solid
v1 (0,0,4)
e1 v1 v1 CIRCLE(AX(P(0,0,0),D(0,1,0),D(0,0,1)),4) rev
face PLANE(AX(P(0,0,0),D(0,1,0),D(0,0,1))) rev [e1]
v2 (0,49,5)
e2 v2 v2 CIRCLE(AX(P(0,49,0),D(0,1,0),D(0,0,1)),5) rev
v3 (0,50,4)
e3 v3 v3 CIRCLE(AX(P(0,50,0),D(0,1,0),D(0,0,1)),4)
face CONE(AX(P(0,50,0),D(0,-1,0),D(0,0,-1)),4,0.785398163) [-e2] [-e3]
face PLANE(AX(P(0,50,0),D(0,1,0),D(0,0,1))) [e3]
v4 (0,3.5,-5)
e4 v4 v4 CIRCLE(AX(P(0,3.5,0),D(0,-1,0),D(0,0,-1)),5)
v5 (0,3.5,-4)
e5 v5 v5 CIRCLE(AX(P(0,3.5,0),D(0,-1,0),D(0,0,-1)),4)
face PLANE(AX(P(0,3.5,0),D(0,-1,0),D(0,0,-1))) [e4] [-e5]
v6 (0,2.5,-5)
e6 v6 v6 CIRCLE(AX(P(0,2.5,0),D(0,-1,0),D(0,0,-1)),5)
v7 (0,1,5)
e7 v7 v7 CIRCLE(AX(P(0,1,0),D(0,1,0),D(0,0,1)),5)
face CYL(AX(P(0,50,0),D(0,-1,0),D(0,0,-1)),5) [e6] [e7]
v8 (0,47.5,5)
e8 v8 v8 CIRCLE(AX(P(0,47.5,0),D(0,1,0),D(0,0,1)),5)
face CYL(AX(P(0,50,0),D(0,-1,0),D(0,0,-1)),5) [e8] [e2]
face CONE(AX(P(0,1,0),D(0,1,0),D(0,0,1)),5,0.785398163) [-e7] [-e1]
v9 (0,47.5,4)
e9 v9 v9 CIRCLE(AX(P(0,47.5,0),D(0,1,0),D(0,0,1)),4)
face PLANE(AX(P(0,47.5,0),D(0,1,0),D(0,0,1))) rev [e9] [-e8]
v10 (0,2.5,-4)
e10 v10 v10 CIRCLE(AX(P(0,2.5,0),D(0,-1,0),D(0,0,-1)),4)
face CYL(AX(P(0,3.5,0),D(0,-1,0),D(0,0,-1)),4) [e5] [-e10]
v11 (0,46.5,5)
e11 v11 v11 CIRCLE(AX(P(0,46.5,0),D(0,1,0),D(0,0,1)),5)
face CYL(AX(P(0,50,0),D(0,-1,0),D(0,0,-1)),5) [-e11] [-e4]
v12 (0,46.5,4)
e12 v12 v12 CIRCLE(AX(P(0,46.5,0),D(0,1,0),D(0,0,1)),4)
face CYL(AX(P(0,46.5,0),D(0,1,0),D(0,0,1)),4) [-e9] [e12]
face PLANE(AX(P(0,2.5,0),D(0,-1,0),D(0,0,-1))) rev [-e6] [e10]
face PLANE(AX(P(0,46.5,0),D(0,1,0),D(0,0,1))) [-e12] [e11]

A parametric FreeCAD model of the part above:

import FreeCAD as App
import Part
import Sketcher

V = App.Vector


def edges_at(feature, points):
    """Names of the edges that pass closest to the given points."""
    edges = feature.Shape.Edges
    near = lambda p: min(range(len(edges)), key=lambda i: edges[i].distToShape(Part.Vertex(*p))[0])
    return sorted({f"Edge{near(p) + 1}" for p in points})

doc = App.newDocument("Part")
params = doc.addObject("Spreadsheet::Sheet", "Params")
for row, (alias, value) in enumerate([
    ("sketch1_diameter", "10 mm"),
    ("pad1_length", "50 mm"),
    ("chamfer_size", "1 mm"),
    ("sketch2_diameter", "12 mm"),
    ("sketch2_diameter2", "8 mm"),
    ("pocket1_length", "1 mm"),
    ("sketch3_diameter", "10 mm"),
    ("sketch3_diameter2", "8 mm"),
    ("pocket2_length", "1 mm"),
], start=1):
    params.set(f"A{row}", alias)
    params.set(f"B{row}", "=" + value)
    params.setAlias(f"B{row}", alias)

body = doc.addObject("PartDesign::Body", "Body")

# Sketch on XZ plane
sketch1 = body.newObject("Sketcher::SketchObject", "Sketch")
sketch1.AttachmentSupport = (doc.getObject("XZ_Plane"), [""])
sketch1.MapMode = "FlatFace"
sketch1.addGeometry(Part.Circle(V(0, 0, 0), V(0, 0, 1), 5), False)
sketch1.addConstraint([
    Sketcher.Constraint("Coincident", 0, 3, -1, 1),
    Sketcher.Constraint("Diameter", 0, 10.0),
])
sketch1.setExpression("Constraints[1]", "Params.sketch1_diameter")
pad1 = body.newObject("PartDesign::Pad", "Pad")
pad1.Profile = sketch1
pad1.setExpression("Length", "Params.pad1_length")
pad1.Reversed = True
doc.recompute()

chamfer = body.newObject("PartDesign::Chamfer", "Chamfer")
chamfer.Base = (pad1, edges_at(pad1, [(0, 0, -5), (0, 50, -5)]))
chamfer.setExpression("Size", "Params.chamfer_size")

# Sketch on XZ plane
sketch2 = body.newObject("Sketcher::SketchObject", "Sketch001")
sketch2.AttachmentSupport = (doc.getObject("XZ_Plane"), [""])
sketch2.MapMode = "FlatFace"
sketch2.AttachmentOffset = App.Placement(V(0, 0, -2.5), App.Rotation())
sketch2.addGeometry([
    Part.Circle(V(0, 0, 0), V(0, 0, 1), 6),
    Part.Circle(V(0, 0, 0), V(0, 0, 1), 4),
], False)
sketch2.addConstraint([
    Sketcher.Constraint("Coincident", 0, 3, -1, 1),
    Sketcher.Constraint("Coincident", 1, 3, -1, 1),
    Sketcher.Constraint("Diameter", 0, 12.0),
    Sketcher.Constraint("Diameter", 1, 8.0),
])
sketch2.setExpression("Constraints[2]", "Params.sketch2_diameter")
sketch2.setExpression("Constraints[3]", "Params.sketch2_diameter2")
pocket1 = body.newObject("PartDesign::Pocket", "Pocket")
pocket1.Profile = sketch2
pocket1.setExpression("Length", "Params.pocket1_length")

# Sketch on XZ plane
sketch3 = body.newObject("Sketcher::SketchObject", "Sketch002")
sketch3.AttachmentSupport = (doc.getObject("XZ_Plane"), [""])
sketch3.MapMode = "FlatFace"
sketch3.AttachmentOffset = App.Placement(V(0, 0, -46.5), App.Rotation())
sketch3.addGeometry([
    Part.Circle(V(0, 0, 0), V(0, 0, 1), 5),
    Part.Circle(V(0, 0, 0), V(0, 0, 1), 4),
], False)
sketch3.addConstraint([
    Sketcher.Constraint("Coincident", 0, 3, -1, 1),
    Sketcher.Constraint("Coincident", 1, 3, -1, 1),
    Sketcher.Constraint("Diameter", 0, 10.0),
    Sketcher.Constraint("Diameter", 1, 8.0),
])
sketch3.setExpression("Constraints[2]", "Params.sketch3_diameter")
sketch3.setExpression("Constraints[3]", "Params.sketch3_diameter2")
pocket2 = body.newObject("PartDesign::Pocket", "Pocket001")
pocket2.Profile = sketch3
pocket2.setExpression("Length", "Params.pocket2_length")

doc.recompute()
